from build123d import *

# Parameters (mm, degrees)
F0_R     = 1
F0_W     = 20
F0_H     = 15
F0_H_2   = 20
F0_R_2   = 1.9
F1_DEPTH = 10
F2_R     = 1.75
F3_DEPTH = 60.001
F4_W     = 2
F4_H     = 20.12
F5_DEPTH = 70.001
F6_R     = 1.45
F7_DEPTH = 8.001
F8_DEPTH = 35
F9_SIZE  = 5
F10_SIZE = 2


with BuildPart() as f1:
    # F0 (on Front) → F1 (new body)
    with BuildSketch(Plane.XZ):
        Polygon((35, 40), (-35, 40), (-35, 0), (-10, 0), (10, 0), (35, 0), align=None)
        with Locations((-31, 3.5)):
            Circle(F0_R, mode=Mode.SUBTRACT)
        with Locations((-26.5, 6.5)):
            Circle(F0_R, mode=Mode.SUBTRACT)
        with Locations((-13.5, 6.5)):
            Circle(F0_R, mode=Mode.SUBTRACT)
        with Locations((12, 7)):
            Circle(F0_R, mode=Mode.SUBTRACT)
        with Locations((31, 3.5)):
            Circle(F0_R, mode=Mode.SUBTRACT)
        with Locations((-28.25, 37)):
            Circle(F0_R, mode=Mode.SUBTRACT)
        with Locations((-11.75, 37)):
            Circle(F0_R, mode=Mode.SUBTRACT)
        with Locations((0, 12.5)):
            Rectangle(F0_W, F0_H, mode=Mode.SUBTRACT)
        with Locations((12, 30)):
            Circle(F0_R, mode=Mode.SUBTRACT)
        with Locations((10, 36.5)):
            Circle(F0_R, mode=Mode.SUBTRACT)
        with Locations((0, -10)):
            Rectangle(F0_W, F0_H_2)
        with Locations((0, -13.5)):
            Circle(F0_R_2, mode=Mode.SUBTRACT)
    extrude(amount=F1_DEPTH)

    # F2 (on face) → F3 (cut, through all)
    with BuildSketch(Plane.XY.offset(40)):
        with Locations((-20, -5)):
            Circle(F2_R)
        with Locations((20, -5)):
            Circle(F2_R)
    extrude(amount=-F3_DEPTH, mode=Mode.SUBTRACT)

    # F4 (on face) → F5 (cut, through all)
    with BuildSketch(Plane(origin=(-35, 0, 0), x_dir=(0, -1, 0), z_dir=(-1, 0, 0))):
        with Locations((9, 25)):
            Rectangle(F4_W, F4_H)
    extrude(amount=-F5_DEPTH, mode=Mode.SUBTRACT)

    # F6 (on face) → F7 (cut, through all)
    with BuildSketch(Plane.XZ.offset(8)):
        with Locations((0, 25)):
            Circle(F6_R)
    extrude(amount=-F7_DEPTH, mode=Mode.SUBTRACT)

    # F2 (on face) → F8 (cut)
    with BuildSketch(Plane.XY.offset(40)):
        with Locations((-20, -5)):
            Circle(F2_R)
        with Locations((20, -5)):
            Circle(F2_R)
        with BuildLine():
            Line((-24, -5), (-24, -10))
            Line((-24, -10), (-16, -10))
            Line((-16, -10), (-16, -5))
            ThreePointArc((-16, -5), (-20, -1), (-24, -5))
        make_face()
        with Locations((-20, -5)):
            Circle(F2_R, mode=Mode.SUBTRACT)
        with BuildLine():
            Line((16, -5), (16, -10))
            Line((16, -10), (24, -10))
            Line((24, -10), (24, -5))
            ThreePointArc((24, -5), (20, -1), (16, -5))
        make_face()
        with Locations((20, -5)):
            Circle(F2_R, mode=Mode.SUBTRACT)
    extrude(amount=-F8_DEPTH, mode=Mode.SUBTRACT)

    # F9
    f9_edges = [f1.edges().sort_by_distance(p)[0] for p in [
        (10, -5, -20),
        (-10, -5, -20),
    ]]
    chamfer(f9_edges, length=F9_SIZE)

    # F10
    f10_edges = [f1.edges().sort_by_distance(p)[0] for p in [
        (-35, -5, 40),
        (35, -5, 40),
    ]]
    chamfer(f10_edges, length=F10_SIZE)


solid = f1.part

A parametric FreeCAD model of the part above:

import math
import FreeCAD as App
import Part
import Sketcher
Q = App.Units.Quantity


def edges_at(feature, points):
    """Names of the edges that pass closest to the given points."""
    edges = feature.Shape.Edges
    near = lambda p: min(range(len(edges)), key=lambda i: edges[i].distToShape(Part.Vertex(*p))[0])
    return sorted({f"Edge{near(p) + 1}" for p in points})

doc = App.newDocument("Part")
body = doc.addObject("PartDesign::Body", "Body")

# Sketch on XZ plane
sketch1 = body.newObject("Sketcher::SketchObject", "Sketch")
sketch1.AttachmentSupport = (doc.getObject("XZ_Plane"), [""])
sketch1.MapMode = "FlatFace"
sketch1.addGeometry([
    Part.LineSegment(App.Vector(35, 40, 0), App.Vector(-35, 40, 0)),  # 0
    Part.LineSegment(App.Vector(-35, 40, 0), App.Vector(-35, 0, 0)),  # 1
    Part.LineSegment(App.Vector(-35, 0, 0), App.Vector(-10, 0, 0)),  # 2
    Part.LineSegment(App.Vector(-10, 0, 0), App.Vector(-10, -20, 0)),  # 3
    Part.LineSegment(App.Vector(-10, -20, 0), App.Vector(10, -20, 0)),  # 4
    Part.LineSegment(App.Vector(10, -20, 0), App.Vector(10, 0, 0)),  # 5
    Part.LineSegment(App.Vector(10, 0, 0), App.Vector(35, 0, 0)),  # 6
    Part.LineSegment(App.Vector(35, 0, 0), App.Vector(35, 40, 0)),  # 7
    Part.Circle(App.Vector(-31, 3.5, 0), App.Vector(0, 0, 1), 1),  # 8
    Part.Circle(App.Vector(-26.5, 6.5, 0), App.Vector(0, 0, 1), 1),  # 9
    Part.Circle(App.Vector(-13.5, 6.5, 0), App.Vector(0, 0, 1), 1),  # 10
    Part.Circle(App.Vector(0, -13.5, 0), App.Vector(0, 0, 1), 1.9),  # 11
    Part.Circle(App.Vector(12, 7, 0), App.Vector(0, 0, 1), 1),  # 12
    Part.Circle(App.Vector(31, 3.5, 0), App.Vector(0, 0, 1), 1),  # 13
    Part.Circle(App.Vector(-28.25, 37, 0), App.Vector(0, 0, 1), 1),  # 14
    Part.Circle(App.Vector(-11.75, 37, 0), App.Vector(0, 0, 1), 1),  # 15
    Part.LineSegment(App.Vector(10, 5, 0), App.Vector(-10, 5, 0)),  # 16
    Part.LineSegment(App.Vector(-10, 5, 0), App.Vector(-10, 20, 0)),  # 17
    Part.LineSegment(App.Vector(-10, 20, 0), App.Vector(10, 20, 0)),  # 18
    Part.LineSegment(App.Vector(10, 20, 0), App.Vector(10, 5, 0)),  # 19
    Part.Circle(App.Vector(12, 30, 0), App.Vector(0, 0, 1), 1),  # 20
    Part.Circle(App.Vector(10, 36.5, 0), App.Vector(0, 0, 1), 1),  # 21
], False)
sketch1.addConstraint([
    Sketcher.Constraint("Coincident", 0, 2, 1, 1),
    Sketcher.Constraint("Coincident", 1, 2, 2, 1),
    Sketcher.Constraint("Coincident", 2, 2, 3, 1),
    Sketcher.Constraint("Coincident", 3, 2, 4, 1),
    Sketcher.Constraint("Coincident", 4, 2, 5, 1),
    Sketcher.Constraint("Coincident", 5, 2, 6, 1),
    Sketcher.Constraint("Coincident", 6, 2, 7, 1),
    Sketcher.Constraint("Coincident", 7, 2, 0, 1),
    Sketcher.Constraint("Coincident", 16, 2, 17, 1),
    Sketcher.Constraint("Coincident", 17, 2, 18, 1),
    Sketcher.Constraint("Coincident", 18, 2, 19, 1),
    Sketcher.Constraint("Coincident", 19, 2, 16, 1),
    Sketcher.Constraint("Horizontal", 0),
    Sketcher.Constraint("Vertical", 1),
    Sketcher.Constraint("Horizontal", 2),
    Sketcher.Constraint("Vertical", 3),
    Sketcher.Constraint("Horizontal", 4),
    Sketcher.Constraint("Vertical", 5),
    Sketcher.Constraint("Horizontal", 6),
    Sketcher.Constraint("Vertical", 7),
    Sketcher.Constraint("Horizontal", 16),
    Sketcher.Constraint("Vertical", 17),
    Sketcher.Constraint("Horizontal", 18),
    Sketcher.Constraint("Vertical", 19),
    Sketcher.Constraint("Equal", 8, 9),
    Sketcher.Constraint("Equal", 9, 10),
    Sketcher.Constraint("Equal", 10, 12),
    Sketcher.Constraint("Equal", 12, 13),
    Sketcher.Constraint("Equal", 13, 14),
    Sketcher.Constraint("Equal", 14, 15),
    Sketcher.Constraint("Equal", 15, 20),
    Sketcher.Constraint("Equal", 20, 21),
    Sketcher.Constraint("Symmetric", 2, 2, 5, 2, -1, 1),
    Sketcher.Constraint("Symmetric", 4, 2, 17, 2, -1, 1),
    Sketcher.Constraint("Symmetric", 8, 3, 13, 3, -2),
    Sketcher.Constraint("Symmetric", 1, 2, 6, 2, -2),
    Sketcher.Constraint("PointOnObject", 11, 3, -2),
    Sketcher.Constraint("Horizontal", 9, 3, 10, 3),
    Sketcher.Constraint("Horizontal", 14, 3, 15, 3),
    Sketcher.Constraint("Vertical", 12, 3, 20, 3),
    Sketcher.Constraint("Vertical", 21, 3, 4, 2),
    Sketcher.Constraint("Vertical", 5, 2, 18, 2),
    Sketcher.Constraint("Equal", 18, 3),
    Sketcher.Constraint("Diameter", 8, Q("2 mm")),
    Sketcher.Constraint("Diameter", 11, Q("3.8 mm")),
    Sketcher.Constraint("DistanceX", 0, 2, 0, 1, Q("70 mm")),
    Sketcher.Constraint("DistanceX", 2, 1, 2, 2, Q("25 mm")),
    Sketcher.Constraint("DistanceY", 1, 2, 1, 1, Q("40 mm")),
    Sketcher.Constraint("DistanceY", 17, 1, 17, 2, Q("15 mm")),
    Sketcher.Constraint("DistanceX", 8, 3, -1, 1, Q("31 mm")),
    Sketcher.Constraint("DistanceX", -1, 1, 12, 3, Q("12 mm")),
    Sketcher.Constraint("DistanceY", -1, 1, 12, 3, Q("7 mm")),
    Sketcher.Constraint("DistanceY", -1, 1, 14, 3, Q("37 mm")),
    Sketcher.Constraint("DistanceY", -1, 1, 20, 3, Q("30 mm")),
    Sketcher.Constraint("DistanceY", 8, 3, 9, 3, Q("3 mm")),
    Sketcher.Constraint("DistanceX", 9, 3, 10, 3, Q("13 mm")),
    Sketcher.Constraint("DistanceY", 11, 3, 10, 3, Q("20 mm")),
    Sketcher.Constraint("DistanceY", 10, 3, 21, 3, Q("30 mm")),
    Sketcher.Constraint("DistanceY", -1, 1, 8, 3, Q("3.5 mm")),
    Sketcher.Constraint("DistanceX", 9, 3, -1, 1, Q("26.5 mm")),
    Sketcher.Constraint("DistanceX", 14, 3, 15, 3, Q("16.5 mm")),
    Sketcher.Constraint("DistanceX", 14, 3, -1, 1, Q("28.25 mm")),
])
pad1 = body.newObject("PartDesign::Pad", "Pad")
pad1.Profile = sketch1
pad1.Length = 10

# Sketch on XY plane
sketch2 = body.newObject("Sketcher::SketchObject", "Sketch001")
sketch2.AttachmentSupport = (doc.getObject("XY_Plane"), [""])
sketch2.MapMode = "FlatFace"
sketch2.AttachmentOffset = App.Placement(App.Vector(0, 0, 40), App.Rotation())
sketch2.addGeometry([
    Part.Circle(App.Vector(-20, -5, 0), App.Vector(0, 0, 1), 1.75),
    Part.Circle(App.Vector(20, -5, 0), App.Vector(0, 0, 1), 1.75),
], False)
sketch2.addConstraint([
    Sketcher.Constraint("Equal", 0, 1),
    Sketcher.Constraint("Symmetric", 0, 3, 1, 3, -2),
    Sketcher.Constraint("Diameter", 0, Q("3.5 mm")),
    Sketcher.Constraint("DistanceX", 0, 3, -1, 1, Q("20 mm")),
    Sketcher.Constraint("DistanceY", 0, 3, -1, 1, Q("5 mm")),
])
pocket1 = body.newObject("PartDesign::Pocket", "Pocket")
pocket1.Profile = sketch2
pocket1.Type = "ThroughAll"

# Sketch on YZ plane
sketch3 = body.newObject("Sketcher::SketchObject", "Sketch002")
sketch3.AttachmentSupport = (doc.getObject("YZ_Plane"), [""])
sketch3.MapMode = "FlatFace"
sketch3.AttachmentOffset = App.Placement(App.Vector(0, 0, -35), App.Rotation())
sketch3.addGeometry([
    Part.LineSegment(App.Vector(-8, 35.06, 0), App.Vector(-8, 14.94, 0)),
    Part.LineSegment(App.Vector(-8, 14.94, 0), App.Vector(-10, 14.94, 0)),
    Part.LineSegment(App.Vector(-10, 14.94, 0), App.Vector(-10, 35.06, 0)),
    Part.LineSegment(App.Vector(-10, 35.06, 0), App.Vector(-8, 35.06, 0)),
], False)
sketch3.addConstraint([
    Sketcher.Constraint("Coincident", 0, 2, 1, 1),
    Sketcher.Constraint("Coincident", 1, 2, 2, 1),
    Sketcher.Constraint("Coincident", 2, 2, 3, 1),
    Sketcher.Constraint("Coincident", 3, 2, 0, 1),
    Sketcher.Constraint("Vertical", 0),
    Sketcher.Constraint("Horizontal", 1),
    Sketcher.Constraint("Vertical", 2),
    Sketcher.Constraint("Horizontal", 3),
    Sketcher.Constraint("DistanceX", 1, 2, 1, 1, Q("2 mm")),
    Sketcher.Constraint("DistanceX", 0, 2, -1, 1, Q("8 mm")),
    Sketcher.Constraint("DistanceY", 0, 2, 0, 1, Q("20.12 mm")),
    Sketcher.Constraint("DistanceY", -1, 1, 0, 2, Q("14.94 mm")),
])
pocket2 = body.newObject("PartDesign::Pocket", "Pocket001")
pocket2.Profile = sketch3
pocket2.Type = "ThroughAll"
pocket2.Reversed = True

# Sketch on XZ plane
sketch4 = body.newObject("Sketcher::SketchObject", "Sketch003")
sketch4.AttachmentSupport = (doc.getObject("XZ_Plane"), [""])
sketch4.MapMode = "FlatFace"
sketch4.AttachmentOffset = App.Placement(App.Vector(0, 0, 8), App.Rotation())
sketch4.addGeometry(Part.Circle(App.Vector(0, 25, 0), App.Vector(0, 0, 1), 1.45), False)
sketch4.addConstraint([
    Sketcher.Constraint("PointOnObject", 0, 3, -2),
    Sketcher.Constraint("Diameter", 0, Q("2.9 mm")),
    Sketcher.Constraint("DistanceY", -1, 1, 0, 3, Q("25 mm")),
])
pocket3 = body.newObject("PartDesign::Pocket", "Pocket002")
pocket3.Profile = sketch4
pocket3.Type = "ThroughAll"

# Sketch on XY plane
sketch5 = body.newObject("Sketcher::SketchObject", "Sketch004")
sketch5.AttachmentSupport = (doc.getObject("XY_Plane"), [""])
sketch5.MapMode = "FlatFace"
sketch5.AttachmentOffset = App.Placement(App.Vector(0, 0, 40), App.Rotation())
sketch5.addGeometry([
    Part.LineSegment(App.Vector(-24, -5, 0), App.Vector(-24, -10, 0)),  # 0
    Part.LineSegment(App.Vector(-24, -10, 0), App.Vector(-16, -10, 0)),  # 1
    Part.LineSegment(App.Vector(-16, -10, 0), App.Vector(-16, -5, 0)),  # 2
    Part.ArcOfCircle(Part.Circle(App.Vector(-20, -5, 0), App.Vector(0, 0, 1), 4), math.radians(0), math.radians(180)),  # 3
    Part.Circle(App.Vector(-20, -5, 0), App.Vector(0, 0, 1), 1.75),  # 4
    Part.LineSegment(App.Vector(16, -5, 0), App.Vector(16, -10, 0)),  # 5
    Part.LineSegment(App.Vector(16, -10, 0), App.Vector(24, -10, 0)),  # 6
    Part.LineSegment(App.Vector(24, -10, 0), App.Vector(24, -5, 0)),  # 7
    Part.ArcOfCircle(Part.Circle(App.Vector(20, -5, 0), App.Vector(0, 0, 1), 4), math.radians(0), math.radians(180)),  # 8
    Part.Circle(App.Vector(20, -5, 0), App.Vector(0, 0, 1), 1.75),  # 9
], False)
sketch5.addConstraint([
    Sketcher.Constraint("Coincident", 0, 2, 1, 1),
    Sketcher.Constraint("Coincident", 1, 2, 2, 1),
    Sketcher.Constraint("Tangent", 2, 2, 3, 1),
    Sketcher.Constraint("Tangent", 3, 2, 0, 1),
    Sketcher.Constraint("Coincident", 5, 2, 6, 1),
    Sketcher.Constraint("Coincident", 6, 2, 7, 1),
    Sketcher.Constraint("Tangent", 7, 2, 8, 1),
    Sketcher.Constraint("Tangent", 8, 2, 5, 1),
    Sketcher.Constraint("Vertical", 0),
    Sketcher.Constraint("Horizontal", 1),
    Sketcher.Constraint("Vertical", 2),
    Sketcher.Constraint("Vertical", 5),
    Sketcher.Constraint("Horizontal", 6),
    Sketcher.Constraint("Vertical", 7),
    Sketcher.Constraint("Coincident", 4, 3, 3, 3),
    Sketcher.Constraint("Coincident", 9, 3, 8, 3),
    Sketcher.Constraint("Equal", 3, 8),
    Sketcher.Constraint("Equal", 4, 9),
    Sketcher.Constraint("Symmetric", 3, 3, 8, 3, -2),
    Sketcher.Constraint("Horizontal", 1, 2, 5, 2),
    Sketcher.Constraint("Radius", 3, Q("4 mm")),
    Sketcher.Constraint("Diameter", 4, Q("3.5 mm")),
    Sketcher.Constraint("DistanceY", 0, 2, 0, 1, Q("5 mm")),
    Sketcher.Constraint("DistanceX", 3, 3, -1, 1, Q("20 mm")),
    Sketcher.Constraint("DistanceY", 3, 3, -1, 1, Q("5 mm")),
])
pocket4 = body.newObject("PartDesign::Pocket", "Pocket003")
pocket4.Profile = sketch5
pocket4.Length = 35
doc.recompute()

chamfer = body.newObject("PartDesign::Chamfer", "Chamfer")
chamfer.Base = (pocket4, edges_at(pocket4, [(10, -5, -20), (-10, -5, -20)]))
chamfer.Size = 5
doc.recompute()

chamfer2 = body.newObject("PartDesign::Chamfer", "Chamfer001")
chamfer2.Base = (chamfer, edges_at(chamfer, [(-35, -5, 40), (35, -5, 40)]))
chamfer2.Size = 2

doc.recompute()
